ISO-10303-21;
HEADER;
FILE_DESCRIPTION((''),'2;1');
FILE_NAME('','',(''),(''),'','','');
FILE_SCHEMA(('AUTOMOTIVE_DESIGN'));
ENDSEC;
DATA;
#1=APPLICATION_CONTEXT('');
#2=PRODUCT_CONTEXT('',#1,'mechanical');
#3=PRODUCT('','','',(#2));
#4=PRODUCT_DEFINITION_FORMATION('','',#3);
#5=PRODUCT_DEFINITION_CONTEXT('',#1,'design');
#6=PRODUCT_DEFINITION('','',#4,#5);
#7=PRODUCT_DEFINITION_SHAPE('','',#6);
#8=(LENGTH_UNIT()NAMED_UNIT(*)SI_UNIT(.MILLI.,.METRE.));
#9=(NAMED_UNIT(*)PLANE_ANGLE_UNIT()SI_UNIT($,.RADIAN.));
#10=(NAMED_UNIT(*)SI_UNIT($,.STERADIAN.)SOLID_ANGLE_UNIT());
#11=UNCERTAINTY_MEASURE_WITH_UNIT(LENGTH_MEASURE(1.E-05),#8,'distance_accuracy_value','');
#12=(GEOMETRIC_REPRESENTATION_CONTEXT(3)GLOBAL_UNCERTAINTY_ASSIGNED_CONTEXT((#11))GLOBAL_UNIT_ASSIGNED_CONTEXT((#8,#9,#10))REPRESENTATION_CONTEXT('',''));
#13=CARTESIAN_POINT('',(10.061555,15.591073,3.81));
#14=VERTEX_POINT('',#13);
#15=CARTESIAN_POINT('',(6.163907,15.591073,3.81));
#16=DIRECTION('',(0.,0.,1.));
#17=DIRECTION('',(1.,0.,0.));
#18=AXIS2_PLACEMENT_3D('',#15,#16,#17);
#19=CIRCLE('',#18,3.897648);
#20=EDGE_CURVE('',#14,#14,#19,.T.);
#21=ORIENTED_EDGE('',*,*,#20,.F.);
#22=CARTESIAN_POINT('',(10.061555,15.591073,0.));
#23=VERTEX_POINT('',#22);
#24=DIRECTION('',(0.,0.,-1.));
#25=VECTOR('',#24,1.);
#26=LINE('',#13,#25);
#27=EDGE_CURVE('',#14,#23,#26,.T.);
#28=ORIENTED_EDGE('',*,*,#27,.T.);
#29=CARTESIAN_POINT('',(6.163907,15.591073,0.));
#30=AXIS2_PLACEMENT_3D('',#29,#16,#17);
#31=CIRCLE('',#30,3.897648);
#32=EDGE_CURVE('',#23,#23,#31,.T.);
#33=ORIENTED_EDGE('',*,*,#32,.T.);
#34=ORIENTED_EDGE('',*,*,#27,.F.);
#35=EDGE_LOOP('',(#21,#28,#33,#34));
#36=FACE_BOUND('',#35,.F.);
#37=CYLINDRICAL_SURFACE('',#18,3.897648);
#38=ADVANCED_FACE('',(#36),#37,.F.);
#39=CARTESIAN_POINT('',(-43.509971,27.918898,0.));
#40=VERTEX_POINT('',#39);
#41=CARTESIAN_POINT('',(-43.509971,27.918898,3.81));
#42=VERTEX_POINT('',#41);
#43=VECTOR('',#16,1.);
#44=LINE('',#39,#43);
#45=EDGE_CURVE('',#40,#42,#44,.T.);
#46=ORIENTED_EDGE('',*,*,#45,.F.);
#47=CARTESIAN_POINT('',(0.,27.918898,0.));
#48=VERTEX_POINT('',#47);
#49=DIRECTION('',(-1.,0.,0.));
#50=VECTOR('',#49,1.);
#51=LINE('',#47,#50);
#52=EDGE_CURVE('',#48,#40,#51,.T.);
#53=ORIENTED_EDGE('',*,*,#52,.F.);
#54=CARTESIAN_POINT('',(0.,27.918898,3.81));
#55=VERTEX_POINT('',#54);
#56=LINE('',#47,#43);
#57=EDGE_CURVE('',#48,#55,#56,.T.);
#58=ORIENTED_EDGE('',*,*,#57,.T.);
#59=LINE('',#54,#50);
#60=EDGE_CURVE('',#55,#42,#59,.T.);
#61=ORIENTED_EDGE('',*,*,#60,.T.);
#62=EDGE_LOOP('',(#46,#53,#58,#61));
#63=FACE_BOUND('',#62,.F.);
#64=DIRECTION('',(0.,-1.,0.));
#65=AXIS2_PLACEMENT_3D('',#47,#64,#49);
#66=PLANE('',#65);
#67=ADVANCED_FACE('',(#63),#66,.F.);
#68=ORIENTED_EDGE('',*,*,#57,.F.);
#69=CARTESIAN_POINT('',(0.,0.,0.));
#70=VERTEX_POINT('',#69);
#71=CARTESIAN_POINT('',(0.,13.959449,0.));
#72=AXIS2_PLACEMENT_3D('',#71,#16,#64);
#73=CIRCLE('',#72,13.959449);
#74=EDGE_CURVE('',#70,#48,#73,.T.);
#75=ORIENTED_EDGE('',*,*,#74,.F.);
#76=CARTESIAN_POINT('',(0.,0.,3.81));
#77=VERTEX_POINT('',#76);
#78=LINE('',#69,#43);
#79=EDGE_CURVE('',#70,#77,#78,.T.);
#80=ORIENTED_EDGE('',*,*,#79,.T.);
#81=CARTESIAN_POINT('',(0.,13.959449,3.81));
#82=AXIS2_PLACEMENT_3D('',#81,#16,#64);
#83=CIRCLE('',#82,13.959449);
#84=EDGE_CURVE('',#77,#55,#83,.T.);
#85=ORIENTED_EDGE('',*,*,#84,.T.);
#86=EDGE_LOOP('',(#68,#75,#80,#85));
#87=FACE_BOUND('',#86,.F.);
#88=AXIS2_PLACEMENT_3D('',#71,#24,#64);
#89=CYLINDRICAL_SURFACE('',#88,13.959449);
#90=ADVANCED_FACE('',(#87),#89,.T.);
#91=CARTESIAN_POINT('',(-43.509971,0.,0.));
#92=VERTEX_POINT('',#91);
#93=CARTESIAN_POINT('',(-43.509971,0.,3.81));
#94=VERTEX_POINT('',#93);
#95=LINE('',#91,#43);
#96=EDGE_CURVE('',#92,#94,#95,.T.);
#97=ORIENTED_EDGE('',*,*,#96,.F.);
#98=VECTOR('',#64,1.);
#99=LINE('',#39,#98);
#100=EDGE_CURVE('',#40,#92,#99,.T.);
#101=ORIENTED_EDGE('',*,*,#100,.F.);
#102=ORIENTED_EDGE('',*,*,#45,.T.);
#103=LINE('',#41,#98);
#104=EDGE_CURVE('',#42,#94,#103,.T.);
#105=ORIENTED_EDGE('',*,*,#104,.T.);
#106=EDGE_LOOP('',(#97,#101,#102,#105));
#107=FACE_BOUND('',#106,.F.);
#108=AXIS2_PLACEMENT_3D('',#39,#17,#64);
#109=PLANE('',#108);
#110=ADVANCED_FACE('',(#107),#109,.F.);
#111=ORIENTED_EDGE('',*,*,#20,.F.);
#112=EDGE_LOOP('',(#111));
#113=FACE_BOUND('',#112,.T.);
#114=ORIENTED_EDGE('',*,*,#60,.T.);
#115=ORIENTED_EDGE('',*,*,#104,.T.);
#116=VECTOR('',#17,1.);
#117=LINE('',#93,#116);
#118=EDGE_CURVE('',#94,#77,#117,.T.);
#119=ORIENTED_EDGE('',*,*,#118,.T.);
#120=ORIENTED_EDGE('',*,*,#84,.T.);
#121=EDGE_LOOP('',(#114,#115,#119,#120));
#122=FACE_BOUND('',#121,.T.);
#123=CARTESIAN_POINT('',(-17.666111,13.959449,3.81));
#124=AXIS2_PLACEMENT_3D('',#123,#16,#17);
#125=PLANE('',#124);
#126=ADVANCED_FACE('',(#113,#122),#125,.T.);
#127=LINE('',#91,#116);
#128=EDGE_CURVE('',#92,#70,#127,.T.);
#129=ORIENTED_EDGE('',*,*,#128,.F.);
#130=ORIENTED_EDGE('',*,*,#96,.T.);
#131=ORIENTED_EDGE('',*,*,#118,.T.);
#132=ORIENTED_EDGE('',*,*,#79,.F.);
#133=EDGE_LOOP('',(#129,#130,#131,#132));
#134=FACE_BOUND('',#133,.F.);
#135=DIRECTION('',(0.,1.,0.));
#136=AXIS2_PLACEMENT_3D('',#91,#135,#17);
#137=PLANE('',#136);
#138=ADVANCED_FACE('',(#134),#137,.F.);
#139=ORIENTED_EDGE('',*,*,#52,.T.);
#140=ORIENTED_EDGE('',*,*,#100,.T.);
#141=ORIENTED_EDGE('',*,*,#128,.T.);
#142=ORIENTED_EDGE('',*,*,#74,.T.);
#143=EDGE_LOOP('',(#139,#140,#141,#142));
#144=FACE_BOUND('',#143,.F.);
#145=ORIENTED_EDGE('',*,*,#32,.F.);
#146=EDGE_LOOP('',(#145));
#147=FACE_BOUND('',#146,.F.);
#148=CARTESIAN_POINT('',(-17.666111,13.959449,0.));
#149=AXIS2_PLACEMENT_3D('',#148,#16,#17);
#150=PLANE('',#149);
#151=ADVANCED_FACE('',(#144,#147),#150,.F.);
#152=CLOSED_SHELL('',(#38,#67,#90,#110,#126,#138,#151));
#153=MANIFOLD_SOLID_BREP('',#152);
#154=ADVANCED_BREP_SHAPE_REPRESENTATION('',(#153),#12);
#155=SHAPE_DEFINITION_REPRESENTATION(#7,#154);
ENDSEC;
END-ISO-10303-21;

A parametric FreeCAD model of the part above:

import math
import FreeCAD as App
import Part
import Sketcher
Q = App.Units.Quantity

doc = App.newDocument("Part")
body = doc.addObject("PartDesign::Body", "Body")

# Sketch on XY plane
sketch1 = doc.addObject("Sketcher::SketchObject", "Sketch")
body.addObject(sketch1)
sketch1.AttachmentSupport = (doc.XY_Plane, [""])
sketch1.MapMode = "FlatFace"
sketch1.addGeometry([
    Part.LineSegment(App.Vector(-44, 0, 0), App.Vector(0, 0, 0)),
    Part.ArcOfCircle(Part.Circle(App.Vector(0, 14, 0), App.Vector(0, 0, 1), 14), math.radians(-90), math.radians(90)),
    Part.LineSegment(App.Vector(0, 28, 0), App.Vector(-44, 28, 0)),
    Part.LineSegment(App.Vector(-44, 28, 0), App.Vector(-44, 0, 0)),
], False)
sketch1.addConstraint([
    Sketcher.Constraint("Tangent", 0, 2, 1, 1),
    Sketcher.Constraint("Tangent", 1, 2, 2, 1),
    Sketcher.Constraint("Coincident", 2, 2, 3, 1),
    Sketcher.Constraint("Coincident", 3, 2, 0, 1),
    Sketcher.Constraint("Horizontal", 0),
    Sketcher.Constraint("Horizontal", 2),
    Sketcher.Constraint("Vertical", 3),
    Sketcher.Constraint("Coincident", 0, 2, -1, 1),
    Sketcher.Constraint("Radius", 1, Q("13.959449 mm")),
    Sketcher.Constraint("DistanceX", 0, 1, 0, 2, Q("43.509971 mm")),
])
pad1 = doc.addObject("PartDesign::Pad", "Pad")
body.addObject(pad1)
pad1.Profile = sketch1
pad1.Length = Q("0.15 in")

# Sketch on XY plane
sketch2 = doc.addObject("Sketcher::SketchObject", "Sketch001")
body.addObject(sketch2)
sketch2.AttachmentSupport = (doc.XY_Plane, [""])
sketch2.MapMode = "FlatFace"
sketch2.AttachmentOffset = App.Placement(App.Vector(0, 0, 0.15 * 25.4), App.Rotation())
sketch2.addGeometry(Part.Circle(App.Vector(6.2, 15.6, 0), App.Vector(0, 0, 1), 3.9), False)
sketch2.addConstraint([
    Sketcher.Constraint("Diameter", 0, Q("7.795296 mm")),
    Sketcher.Constraint("DistanceX", -1, 1, 0, 3, Q("6.163907 mm")),
    Sketcher.Constraint("DistanceY", -1, 1, 0, 3, Q("15.591073 mm")),
])
pocket1 = doc.addObject("PartDesign::Pocket", "Pocket")
body.addObject(pocket1)
pocket1.Profile = sketch2
pocket1.Length = Q("1 in")

doc.recompute()
